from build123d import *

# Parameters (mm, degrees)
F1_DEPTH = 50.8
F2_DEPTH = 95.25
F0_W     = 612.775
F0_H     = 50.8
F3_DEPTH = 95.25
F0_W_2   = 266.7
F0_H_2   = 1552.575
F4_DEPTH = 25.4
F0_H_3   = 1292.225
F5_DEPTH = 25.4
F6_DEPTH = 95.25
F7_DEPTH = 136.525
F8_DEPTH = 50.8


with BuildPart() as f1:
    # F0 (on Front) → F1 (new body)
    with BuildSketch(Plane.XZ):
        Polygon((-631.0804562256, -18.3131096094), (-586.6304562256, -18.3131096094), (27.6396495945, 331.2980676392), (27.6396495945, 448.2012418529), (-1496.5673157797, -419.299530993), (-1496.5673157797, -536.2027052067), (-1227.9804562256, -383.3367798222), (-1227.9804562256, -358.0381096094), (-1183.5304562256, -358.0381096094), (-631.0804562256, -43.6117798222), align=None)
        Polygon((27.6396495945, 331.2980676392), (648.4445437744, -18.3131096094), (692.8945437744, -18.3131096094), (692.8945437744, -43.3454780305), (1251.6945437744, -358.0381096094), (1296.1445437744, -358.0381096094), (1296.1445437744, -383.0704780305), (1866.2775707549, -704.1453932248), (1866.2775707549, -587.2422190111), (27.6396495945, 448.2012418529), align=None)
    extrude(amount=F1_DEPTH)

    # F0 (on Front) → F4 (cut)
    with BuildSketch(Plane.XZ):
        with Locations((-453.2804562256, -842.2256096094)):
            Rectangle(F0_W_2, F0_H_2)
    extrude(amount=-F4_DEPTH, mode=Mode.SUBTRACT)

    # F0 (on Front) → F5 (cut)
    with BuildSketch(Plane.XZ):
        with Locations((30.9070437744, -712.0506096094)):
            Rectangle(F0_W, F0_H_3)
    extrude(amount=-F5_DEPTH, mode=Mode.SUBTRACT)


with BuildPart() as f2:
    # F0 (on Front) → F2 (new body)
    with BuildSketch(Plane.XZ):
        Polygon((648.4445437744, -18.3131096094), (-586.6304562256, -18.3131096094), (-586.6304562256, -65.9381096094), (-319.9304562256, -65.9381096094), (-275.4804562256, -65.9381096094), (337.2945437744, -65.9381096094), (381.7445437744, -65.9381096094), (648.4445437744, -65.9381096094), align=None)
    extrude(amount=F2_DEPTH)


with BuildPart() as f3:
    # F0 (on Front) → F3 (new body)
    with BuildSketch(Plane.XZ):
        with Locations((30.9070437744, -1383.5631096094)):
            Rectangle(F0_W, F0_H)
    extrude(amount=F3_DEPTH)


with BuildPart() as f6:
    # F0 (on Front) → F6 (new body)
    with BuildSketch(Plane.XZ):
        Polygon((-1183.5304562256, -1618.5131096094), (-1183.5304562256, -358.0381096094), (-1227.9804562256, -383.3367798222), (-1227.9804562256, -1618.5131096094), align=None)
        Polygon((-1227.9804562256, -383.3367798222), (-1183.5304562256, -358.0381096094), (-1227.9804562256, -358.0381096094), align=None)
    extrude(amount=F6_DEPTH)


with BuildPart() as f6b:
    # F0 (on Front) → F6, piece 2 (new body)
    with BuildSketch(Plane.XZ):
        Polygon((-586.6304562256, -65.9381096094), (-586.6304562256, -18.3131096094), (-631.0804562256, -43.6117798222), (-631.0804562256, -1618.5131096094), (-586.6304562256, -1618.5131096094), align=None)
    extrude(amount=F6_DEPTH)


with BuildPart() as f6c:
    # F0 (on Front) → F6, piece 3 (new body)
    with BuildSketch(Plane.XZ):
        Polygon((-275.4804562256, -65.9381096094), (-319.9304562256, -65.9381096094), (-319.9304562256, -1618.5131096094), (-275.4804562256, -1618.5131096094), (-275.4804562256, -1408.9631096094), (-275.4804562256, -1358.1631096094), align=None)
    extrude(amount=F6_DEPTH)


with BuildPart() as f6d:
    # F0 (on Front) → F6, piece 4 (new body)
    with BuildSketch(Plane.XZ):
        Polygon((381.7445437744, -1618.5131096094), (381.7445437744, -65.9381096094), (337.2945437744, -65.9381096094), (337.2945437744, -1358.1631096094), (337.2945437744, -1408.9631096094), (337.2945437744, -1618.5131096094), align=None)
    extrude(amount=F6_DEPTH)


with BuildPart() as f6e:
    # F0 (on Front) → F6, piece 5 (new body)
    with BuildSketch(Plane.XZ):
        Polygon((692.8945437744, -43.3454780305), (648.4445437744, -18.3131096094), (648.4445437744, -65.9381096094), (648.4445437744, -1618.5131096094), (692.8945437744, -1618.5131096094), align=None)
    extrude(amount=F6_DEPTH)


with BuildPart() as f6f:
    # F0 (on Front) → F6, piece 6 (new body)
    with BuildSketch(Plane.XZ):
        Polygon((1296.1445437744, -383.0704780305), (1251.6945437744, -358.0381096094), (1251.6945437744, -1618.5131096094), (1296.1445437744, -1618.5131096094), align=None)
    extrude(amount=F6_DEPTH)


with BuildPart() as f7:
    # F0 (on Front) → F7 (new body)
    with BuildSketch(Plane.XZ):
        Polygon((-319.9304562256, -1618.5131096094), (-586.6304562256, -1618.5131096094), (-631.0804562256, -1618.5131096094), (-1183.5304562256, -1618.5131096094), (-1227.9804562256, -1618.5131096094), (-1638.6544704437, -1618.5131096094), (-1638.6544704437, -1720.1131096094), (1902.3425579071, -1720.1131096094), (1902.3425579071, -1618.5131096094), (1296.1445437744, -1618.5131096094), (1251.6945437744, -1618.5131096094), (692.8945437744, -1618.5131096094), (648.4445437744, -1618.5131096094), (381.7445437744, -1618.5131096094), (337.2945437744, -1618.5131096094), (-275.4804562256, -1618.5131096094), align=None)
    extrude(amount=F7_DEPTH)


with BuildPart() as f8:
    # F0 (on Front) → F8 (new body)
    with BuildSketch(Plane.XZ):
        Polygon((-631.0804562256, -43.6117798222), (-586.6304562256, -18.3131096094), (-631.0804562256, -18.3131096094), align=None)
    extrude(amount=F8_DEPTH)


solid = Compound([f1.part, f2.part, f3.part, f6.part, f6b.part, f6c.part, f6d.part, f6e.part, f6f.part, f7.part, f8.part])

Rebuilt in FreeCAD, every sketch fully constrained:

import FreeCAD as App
import Part
import Sketcher
from FreeCAD import Vector
Q = App.Units.Quantity


def add_polygon(sketch, points):
    """Adds a closed chain of lines whose ends are joined by coincident constraints."""
    first, n = sketch.GeometryCount, len(points)
    for a, b in zip(points, points[1:] + points[:1]):
        sketch.addGeometry(Part.LineSegment(App.Vector(*a, 0), App.Vector(*b, 0)), False)
    for i in range(n):
        sketch.addConstraint(Sketcher.Constraint("Coincident", first + i, 2, first + (i + 1) % n, 1))

doc = App.newDocument("Part")
body = doc.addObject("PartDesign::Body", "Body")

sketch1 = body.newObject("Sketcher::SketchObject", "Sketch")
sketch1.AttachmentSupport = (doc.getObject("XZ_Plane"), [""])
sketch1.MapMode = "FlatFace"
add_polygon(sketch1, [(-631.080456, -18.31311), (-586.630456, -18.31311), (27.63965, 331.298068), (648.444544, -18.31311), (692.894544, -18.31311), (692.894544, -43.345478), (1251.694544, -358.03811), (1296.144544, -358.03811), (1296.144544, -383.070478), (1866.277571, -704.145393), (1866.277571, -587.242219), (27.63965, 448.201242), (-1496.567316, -419.299531), (-1496.567316, -536.202705), (-1227.980456, -383.33678), (-1227.980456, -358.03811), (-1183.530456, -358.03811), (-631.080456, -43.61178)])
sketch1.addConstraint([
    Sketcher.Constraint("Horizontal", 0),
    Sketcher.Constraint("Horizontal", 3),
    Sketcher.Constraint("Vertical", 4),
    Sketcher.Constraint("Horizontal", 6),
    Sketcher.Constraint("Vertical", 7),
    Sketcher.Constraint("Vertical", 9),
    Sketcher.Constraint("Vertical", 12),
    Sketcher.Constraint("Vertical", 14),
    Sketcher.Constraint("Horizontal", 15),
    Sketcher.Constraint("Vertical", 17),
    Sketcher.Constraint("Parallel", 2, 5),
    Sketcher.Constraint("Parallel", 5, 8),
    Sketcher.Constraint("Parallel", 8, 10),
    Sketcher.Constraint("Parallel", 1, 11),
    Sketcher.Constraint("Parallel", 11, 13),
    Sketcher.Constraint("Parallel", 13, 16),
    Sketcher.Constraint("Horizontal", 0, 2, 2, 2),
    Sketcher.Constraint("Horizontal", 6, 2, 14, 2),
    Sketcher.Constraint("Vertical", 1, 2, 10, 2),
    Sketcher.Constraint("Equal", 0, 3),
    Sketcher.Constraint("Equal", 3, 6),
    Sketcher.Constraint("Equal", 6, 15),
    Sketcher.Constraint("Equal", 4, 7),
    Sketcher.Constraint("Equal", 9, 12),
    Sketcher.Constraint("Equal", 14, 17),
    Sketcher.Constraint("DistanceX", 4, 2, 5, 2, Q("22 in")),
    Sketcher.Constraint("DistanceX", 0, 1, 0, 2, Q("1.75 in")),
    Sketcher.Constraint("DistanceX", 15, 2, 0, 2, Q("23.5 in")),
    Sketcher.Constraint("DistanceX", 0, 2, 2, 2, Q("48.625 in")),
    Sketcher.Constraint("DistanceY", 5, 2, 3, 2, Q("13.375 in")),
    Sketcher.Constraint("DistanceY", 4, 2, 4, 1, Q("25.032368 mm")),
    Sketcher.Constraint("DistanceY", 11, 2, 1, 2, Q("750.597599 mm")),
    Sketcher.Constraint("Distance", 10, Q("2110.149892 mm")),
    Sketcher.Constraint("DistanceY", 9, 1, 9, 2, Q("116.903174 mm")),
    Sketcher.Constraint("DistanceY", 0, 2, -1, 1, Q("18.31311 mm")),
    Sketcher.Constraint("DistanceX", -1, 1, 1, 2, Q("27.63965 mm")),
])
pad1 = body.newObject("PartDesign::Pad", "Pad")
pad1.Profile = sketch1
pad1.Length = Q("2 in")

sketch2 = body.newObject("Sketcher::SketchObject", "Sketch001")
sketch2.AttachmentSupport = (doc.getObject("XZ_Plane"), [""])
sketch2.MapMode = "FlatFace"
add_polygon(sketch2, [(-586.630456, -65.93811), (-586.630456, -1618.51311), (-319.930456, -1618.51311), (-319.930456, -65.93811)])
sketch2.addConstraint([
    Sketcher.Constraint("Vertical", 0),
    Sketcher.Constraint("Horizontal", 1),
    Sketcher.Constraint("Vertical", 2),
    Sketcher.Constraint("Horizontal", 3),
    Sketcher.Constraint("DistanceX", 1, 1, 1, 2, Q("10.5 in")),
    Sketcher.Constraint("DistanceY", 0, 2, 0, 1, Q("61.125 in")),
    Sketcher.Constraint("DistanceY", 0, 2, -1, 1, Q("1618.51311 mm")),
    Sketcher.Constraint("DistanceX", 0, 2, -1, 1, Q("586.630456 mm")),
])
pocket1 = body.newObject("PartDesign::Pocket", "Pocket")
pocket1.Profile = sketch2
pocket1.Length = Q("1 in")

sketch3 = body.newObject("Sketcher::SketchObject", "Sketch002")
sketch3.AttachmentSupport = (doc.getObject("XZ_Plane"), [""])
sketch3.MapMode = "FlatFace"
add_polygon(sketch3, [(-275.480456, -65.93811), (-275.480456, -1358.16311), (337.294544, -1358.16311), (337.294544, -65.93811)])
sketch3.addConstraint([
    Sketcher.Constraint("Vertical", 0),
    Sketcher.Constraint("Horizontal", 1),
    Sketcher.Constraint("Vertical", 2),
    Sketcher.Constraint("Horizontal", 3),
    Sketcher.Constraint("DistanceX", 1, 1, 1, 2, Q("24.125 in")),
    Sketcher.Constraint("DistanceY", 0, 2, 0, 1, Q("50.875 in")),
    Sketcher.Constraint("DistanceY", 0, 2, -1, 1, Q("1358.16311 mm")),
    Sketcher.Constraint("DistanceX", 0, 2, -1, 1, Q("275.480456 mm")),
])
pocket2 = body.newObject("PartDesign::Pocket", "Pocket001")
pocket2.Profile = sketch3
pocket2.Length = Q("1 in")
body2 = doc.addObject("PartDesign::Body", "Body001")

sketch4 = body2.newObject("Sketcher::SketchObject", "Sketch003")
sketch4.AttachmentSupport = (doc.getObject("XZ_Plane001"), [""])
sketch4.MapMode = "FlatFace"
add_polygon(sketch4, [(648.444544, -18.31311), (-586.630456, -18.31311), (-586.630456, -65.93811), (648.444544, -65.93811)])
sketch4.addConstraint([
    Sketcher.Constraint("Horizontal", 0),
    Sketcher.Constraint("Vertical", 1),
    Sketcher.Constraint("Horizontal", 2),
    Sketcher.Constraint("Vertical", 3),
    Sketcher.Constraint("DistanceX", 0, 2, 0, 1, Q("48.625 in")),
    Sketcher.Constraint("DistanceY", 1, 2, 1, 1, Q("1.875 in")),
    Sketcher.Constraint("DistanceY", 0, 2, -1, 1, Q("18.31311 mm")),
    Sketcher.Constraint("DistanceX", 0, 2, -1, 1, Q("586.630456 mm")),
])
pad2 = body2.newObject("PartDesign::Pad", "Pad001")
pad2.Profile = sketch4
pad2.Length = Q("3.75 in")
body3 = doc.addObject("PartDesign::Body", "Body002")

sketch5 = body3.newObject("Sketcher::SketchObject", "Sketch004")
sketch5.AttachmentSupport = (doc.getObject("XZ_Plane002"), [""])
sketch5.MapMode = "FlatFace"
add_polygon(sketch5, [(-275.480456, -1358.16311), (-275.480456, -1408.96311), (337.294544, -1408.96311), (337.294544, -1358.16311)])
sketch5.addConstraint([
    Sketcher.Constraint("Vertical", 0),
    Sketcher.Constraint("Horizontal", 1),
    Sketcher.Constraint("Vertical", 2),
    Sketcher.Constraint("Horizontal", 3),
    Sketcher.Constraint("DistanceY", 0, 2, 0, 1, Q("2 in")),
    Sketcher.Constraint("DistanceX", 1, 1, 1, 2, Q("24.125 in")),
    Sketcher.Constraint("DistanceY", 0, 2, -1, 1, Q("1408.96311 mm")),
    Sketcher.Constraint("DistanceX", 0, 2, -1, 1, Q("275.480456 mm")),
])
pad3 = body3.newObject("PartDesign::Pad", "Pad002")
pad3.Profile = sketch5
pad3.Length = Q("3.75 in")
body4 = doc.addObject("PartDesign::Body", "Body003")

sketch6 = body4.newObject("Sketcher::SketchObject", "Sketch005")
sketch6.AttachmentSupport = (doc.getObject("XZ_Plane003"), [""])
sketch6.MapMode = "FlatFace"
add_polygon(sketch6, [(-1183.530456, -1618.51311), (-1183.530456, -358.03811), (-1227.980456, -358.03811), (-1227.980456, -1618.51311)])
sketch6.addConstraint([
    Sketcher.Constraint("Vertical", 0),
    Sketcher.Constraint("Horizontal", 1),
    Sketcher.Constraint("Vertical", 2),
    Sketcher.Constraint("Horizontal", 3),
    Sketcher.Constraint("DistanceX", 1, 2, 1, 1, Q("1.75 in")),
    Sketcher.Constraint("DistanceY", 0, 1, 0, 2, Q("49.625 in")),
    Sketcher.Constraint("DistanceY", 0, 2, -1, 1, Q("358.03811 mm")),
    Sketcher.Constraint("DistanceX", 0, 2, -1, 1, Q("1183.530456 mm")),
])
pad4 = body4.newObject("PartDesign::Pad", "Pad003")
pad4.Profile = sketch6
pad4.Length = Q("3.75 in")
body5 = doc.addObject("PartDesign::Body", "Body004")

sketch7 = body5.newObject("Sketcher::SketchObject", "Sketch006")
sketch7.AttachmentSupport = (doc.getObject("XZ_Plane004"), [""])
sketch7.MapMode = "FlatFace"
add_polygon(sketch7, [(-586.630456, -18.31311), (-631.080456, -43.61178), (-631.080456, -1618.51311), (-586.630456, -1618.51311)])
sketch7.addConstraint([
    Sketcher.Constraint("Vertical", 1),
    Sketcher.Constraint("Horizontal", 2),
    Sketcher.Constraint("Vertical", 3),
    Sketcher.Constraint("DistanceY", 3, 1, 3, 2, Q("63 in")),
    Sketcher.Constraint("DistanceX", 2, 1, 2, 2, Q("1.75 in")),
    Sketcher.Constraint("DistanceY", 1, 2, 1, 1, Q("1574.90133 mm")),
    Sketcher.Constraint("DistanceY", 0, 2, -1, 1, Q("43.61178 mm")),
    Sketcher.Constraint("DistanceX", 0, 2, -1, 1, Q("631.080456 mm")),
])
pad5 = body5.newObject("PartDesign::Pad", "Pad004")
pad5.Profile = sketch7
pad5.Length = Q("3.75 in")
body6 = doc.addObject("PartDesign::Body", "Body005")

sketch8 = body6.newObject("Sketcher::SketchObject", "Sketch007")
sketch8.AttachmentSupport = (doc.getObject("XZ_Plane005"), [""])
sketch8.MapMode = "FlatFace"
add_polygon(sketch8, [(-275.480456, -65.93811), (-319.930456, -65.93811), (-319.930456, -1618.51311), (-275.480456, -1618.51311)])
sketch8.addConstraint([
    Sketcher.Constraint("Horizontal", 0),
    Sketcher.Constraint("Vertical", 1),
    Sketcher.Constraint("Horizontal", 2),
    Sketcher.Constraint("Vertical", 3),
    Sketcher.Constraint("DistanceX", 0, 2, 0, 1, Q("1.75 in")),
    Sketcher.Constraint("DistanceY", 1, 2, 1, 1, Q("61.125 in")),
    Sketcher.Constraint("DistanceY", 0, 2, -1, 1, Q("65.93811 mm")),
    Sketcher.Constraint("DistanceX", 0, 2, -1, 1, Q("319.930456 mm")),
])
pad6 = body6.newObject("PartDesign::Pad", "Pad005")
pad6.Profile = sketch8
pad6.Length = Q("3.75 in")
body7 = doc.addObject("PartDesign::Body", "Body006")

sketch9 = body7.newObject("Sketcher::SketchObject", "Sketch008")
sketch9.AttachmentSupport = (doc.getObject("XZ_Plane006"), [""])
sketch9.MapMode = "FlatFace"
add_polygon(sketch9, [(381.744544, -1618.51311), (381.744544, -65.93811), (337.294544, -65.93811), (337.294544, -1618.51311)])
sketch9.addConstraint([
    Sketcher.Constraint("Vertical", 0),
    Sketcher.Constraint("Horizontal", 1),
    Sketcher.Constraint("Vertical", 2),
    Sketcher.Constraint("Horizontal", 3),
    Sketcher.Constraint("DistanceX", 1, 2, 1, 1, Q("1.75 in")),
    Sketcher.Constraint("DistanceY", 0, 1, 0, 2, Q("61.125 in")),
    Sketcher.Constraint("DistanceY", 0, 2, -1, 1, Q("65.93811 mm")),
    Sketcher.Constraint("DistanceX", -1, 1, 0, 2, Q("381.744544 mm")),
])
pad7 = body7.newObject("PartDesign::Pad", "Pad006")
pad7.Profile = sketch9
pad7.Length = Q("3.75 in")
body8 = doc.addObject("PartDesign::Body", "Body007")

sketch10 = body8.newObject("Sketcher::SketchObject", "Sketch009")
sketch10.AttachmentSupport = (doc.getObject("XZ_Plane007"), [""])
sketch10.MapMode = "FlatFace"
add_polygon(sketch10, [(692.894544, -43.345478), (648.444544, -18.31311), (648.444544, -1618.51311), (692.894544, -1618.51311)])
sketch10.addConstraint([
    Sketcher.Constraint("Vertical", 1),
    Sketcher.Constraint("Horizontal", 2),
    Sketcher.Constraint("Vertical", 3),
    Sketcher.Constraint("DistanceY", 1, 2, 1, 1, Q("63 in")),
    Sketcher.Constraint("DistanceX", 2, 1, 2, 2, Q("1.75 in")),
    Sketcher.Constraint("DistanceY", 3, 1, 3, 2, Q("1575.167632 mm")),
    Sketcher.Constraint("DistanceY", 0, 2, -1, 1, Q("18.31311 mm")),
    Sketcher.Constraint("DistanceX", -1, 1, 0, 2, Q("648.444544 mm")),
])
pad8 = body8.newObject("PartDesign::Pad", "Pad007")
pad8.Profile = sketch10
pad8.Length = Q("3.75 in")
body9 = doc.addObject("PartDesign::Body", "Body008")

sketch11 = body9.newObject("Sketcher::SketchObject", "Sketch010")
sketch11.AttachmentSupport = (doc.getObject("XZ_Plane008"), [""])
sketch11.MapMode = "FlatFace"
add_polygon(sketch11, [(1296.144544, -383.070478), (1251.694544, -358.03811), (1251.694544, -1618.51311), (1296.144544, -1618.51311)])
sketch11.addConstraint([
    Sketcher.Constraint("Vertical", 1),
    Sketcher.Constraint("Horizontal", 2),
    Sketcher.Constraint("Vertical", 3),
    Sketcher.Constraint("DistanceX", 2, 1, 2, 2, Q("1.75 in")),
    Sketcher.Constraint("DistanceY", 1, 2, 1, 1, Q("49.625 in")),
    Sketcher.Constraint("DistanceY", 3, 1, 3, 2, Q("1235.442632 mm")),
    Sketcher.Constraint("DistanceY", 0, 2, -1, 1, Q("358.03811 mm")),
    Sketcher.Constraint("DistanceX", -1, 1, 0, 2, Q("1251.694544 mm")),
])
pad9 = body9.newObject("PartDesign::Pad", "Pad008")
pad9.Profile = sketch11
pad9.Length = Q("3.75 in")
body10 = doc.addObject("PartDesign::Body", "Body009")

sketch12 = body10.newObject("Sketcher::SketchObject", "Sketch011")
sketch12.AttachmentSupport = (doc.getObject("XZ_Plane009"), [""])
sketch12.MapMode = "FlatFace"
add_polygon(sketch12, [(-1638.65447, -1618.51311), (-1638.65447, -1720.11311), (1902.342558, -1720.11311), (1902.342558, -1618.51311)])
sketch12.addConstraint([
    Sketcher.Constraint("Vertical", 0),
    Sketcher.Constraint("Horizontal", 1),
    Sketcher.Constraint("Vertical", 2),
    Sketcher.Constraint("Horizontal", 3),
    Sketcher.Constraint("DistanceY", 0, 2, 0, 1, Q("4 in")),
    Sketcher.Constraint("DistanceX", 1, 1, 1, 2, Q("3540.997028 mm")),
    Sketcher.Constraint("DistanceX", 0, 2, -1, 1, Q("1638.65447 mm")),
    Sketcher.Constraint("DistanceY", 0, 2, -1, 1, Q("1720.11311 mm")),
])
pad10 = body10.newObject("PartDesign::Pad", "Pad009")
pad10.Profile = sketch12
pad10.Length = Q("5.375 in")
body11 = doc.addObject("PartDesign::Body", "Body010")

sketch13 = body11.newObject("Sketcher::SketchObject", "Sketch012")
sketch13.AttachmentSupport = (doc.getObject("XZ_Plane010"), [""])
sketch13.MapMode = "FlatFace"
add_polygon(sketch13, [(-631.080456, -43.61178), (-586.630456, -18.31311), (-631.080456, -18.31311)])
sketch13.addConstraint([
    Sketcher.Constraint("Horizontal", 1),
    Sketcher.Constraint("Vertical", 2),
    Sketcher.Constraint("DistanceX", 1, 2, 1, 1, Q("1.75 in")),
    Sketcher.Constraint("DistanceY", 2, 2, 2, 1, Q("25.29867 mm")),
    Sketcher.Constraint("DistanceY", 0, 2, -1, 1, Q("18.31311 mm")),
    Sketcher.Constraint("DistanceX", 0, 2, -1, 1, Q("586.630456 mm")),
])
pad11 = body11.newObject("PartDesign::Pad", "Pad010")
pad11.Profile = sketch13
pad11.Length = Q("2 in")

doc.recompute()
